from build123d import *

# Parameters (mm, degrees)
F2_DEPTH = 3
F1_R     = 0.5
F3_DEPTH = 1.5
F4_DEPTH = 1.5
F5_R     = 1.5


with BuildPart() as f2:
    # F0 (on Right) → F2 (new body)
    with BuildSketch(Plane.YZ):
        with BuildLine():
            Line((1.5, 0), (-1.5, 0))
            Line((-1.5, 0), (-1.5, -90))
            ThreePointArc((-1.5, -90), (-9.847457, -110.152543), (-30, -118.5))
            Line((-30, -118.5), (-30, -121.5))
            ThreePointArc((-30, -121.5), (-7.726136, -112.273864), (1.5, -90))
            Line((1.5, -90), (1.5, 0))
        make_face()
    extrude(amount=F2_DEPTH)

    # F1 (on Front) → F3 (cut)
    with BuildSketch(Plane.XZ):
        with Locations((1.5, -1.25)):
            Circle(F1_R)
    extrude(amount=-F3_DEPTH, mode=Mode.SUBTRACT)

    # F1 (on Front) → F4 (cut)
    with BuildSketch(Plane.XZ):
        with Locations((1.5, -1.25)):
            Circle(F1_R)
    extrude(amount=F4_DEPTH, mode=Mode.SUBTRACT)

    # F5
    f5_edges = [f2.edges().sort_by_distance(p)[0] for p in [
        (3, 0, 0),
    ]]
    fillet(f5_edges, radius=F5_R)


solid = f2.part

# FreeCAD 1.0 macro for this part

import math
import FreeCAD as App
import Part
import Sketcher


def edges_at(feature, points):
    """Names of the edges that pass closest to the given points."""
    edges = feature.Shape.Edges
    near = lambda p: min(range(len(edges)), key=lambda i: edges[i].distToShape(Part.Vertex(*p))[0])
    return sorted({f"Edge{near(p) + 1}" for p in points})

doc = App.newDocument("Part")
body = doc.addObject("PartDesign::Body", "Body")

# Sketch on YZ plane
sketch1 = body.newObject("Sketcher::SketchObject", "Sketch")
sketch1.AttachmentSupport = (doc.getObject("YZ_Plane"), [""])
sketch1.MapMode = "FlatFace"
sketch1.addGeometry([
    Part.LineSegment(App.Vector(1.5, 0, 0), App.Vector(-1.5, 0, 0)),  # 0
    Part.LineSegment(App.Vector(-1.5, 0, 0), App.Vector(-1.5, -90, 0)),  # 1
    Part.ArcOfCircle(Part.Circle(App.Vector(-30, -90, 0), App.Vector(0, 0, 1), 28.5), math.radians(-90), math.radians(0)),  # 2
    Part.LineSegment(App.Vector(-30, -118.5, 0), App.Vector(-30, -121.5, 0)),  # 3
    Part.ArcOfCircle(Part.Circle(App.Vector(-30, -90, 0), App.Vector(0, 0, 1), 31.5), math.radians(-90), math.radians(0)),  # 4
    Part.LineSegment(App.Vector(1.5, -90, 0), App.Vector(1.5, 0, 0)),  # 5
], False)
sketch1.addConstraint([
    Sketcher.Constraint("Coincident", 0, 2, 1, 1),
    Sketcher.Constraint("Tangent", 1, 2, 2, 2),
    Sketcher.Constraint("Coincident", 2, 1, 3, 1),
    Sketcher.Constraint("Coincident", 3, 2, 4, 1),
    Sketcher.Constraint("Tangent", 4, 2, 5, 1),
    Sketcher.Constraint("Coincident", 5, 2, 0, 1),
    Sketcher.Constraint("Horizontal", 0),
    Sketcher.Constraint("Vertical", 1),
    Sketcher.Constraint("Vertical", 3),
    Sketcher.Constraint("Vertical", 5),
    Sketcher.Constraint("Coincident", 4, 3, 2, 3),
    Sketcher.Constraint("Symmetric", 0, 2, 5, 2, -1, 1),
    Sketcher.Constraint("Vertical", 4, 3, 2, 1),
    Sketcher.Constraint("Radius", 2, 28.500001),
    Sketcher.Constraint("Radius", 4, 31.499999),
    Sketcher.Constraint("DistanceY", 1, 2, 1, 1, 90.0),
])
pad1 = body.newObject("PartDesign::Pad", "Pad")
pad1.Profile = sketch1
pad1.Length = 3

# Sketch on XZ plane
sketch2 = body.newObject("Sketcher::SketchObject", "Sketch001")
sketch2.AttachmentSupport = (doc.getObject("XZ_Plane"), [""])
sketch2.MapMode = "FlatFace"
sketch2.addGeometry(Part.Circle(App.Vector(1.5, -1.2, 0), App.Vector(0, 0, 1), 0.5), False)
sketch2.addConstraint([
    Sketcher.Constraint("Diameter", 0, 1.0),
    Sketcher.Constraint("DistanceX", -1, 1, 0, 3, 1.5),
    Sketcher.Constraint("DistanceY", 0, 3, -1, 1, 1.25),
])
pocket1 = body.newObject("PartDesign::Pocket", "Pocket")
pocket1.Profile = sketch2
pocket1.Length = 1.5

# Sketch on XZ plane
sketch3 = body.newObject("Sketcher::SketchObject", "Sketch002")
sketch3.AttachmentSupport = (doc.getObject("XZ_Plane"), [""])
sketch3.MapMode = "FlatFace"
sketch3.addGeometry(Part.Circle(App.Vector(1.5, -1.2, 0), App.Vector(0, 0, 1), 0.5), False)
sketch3.addConstraint([
    Sketcher.Constraint("Diameter", 0, 1.0),
    Sketcher.Constraint("DistanceX", -1, 1, 0, 3, 1.5),
    Sketcher.Constraint("DistanceY", 0, 3, -1, 1, 1.25),
])
pocket2 = body.newObject("PartDesign::Pocket", "Pocket001")
pocket2.Profile = sketch3
pocket2.Length = 1.5
pocket2.Reversed = True
doc.recompute()

fillet = body.newObject("PartDesign::Fillet", "Fillet")
fillet.Base = (pocket2, edges_at(pocket2, [(3, 0, 0)]))
fillet.Radius = 1.5

doc.recompute()
